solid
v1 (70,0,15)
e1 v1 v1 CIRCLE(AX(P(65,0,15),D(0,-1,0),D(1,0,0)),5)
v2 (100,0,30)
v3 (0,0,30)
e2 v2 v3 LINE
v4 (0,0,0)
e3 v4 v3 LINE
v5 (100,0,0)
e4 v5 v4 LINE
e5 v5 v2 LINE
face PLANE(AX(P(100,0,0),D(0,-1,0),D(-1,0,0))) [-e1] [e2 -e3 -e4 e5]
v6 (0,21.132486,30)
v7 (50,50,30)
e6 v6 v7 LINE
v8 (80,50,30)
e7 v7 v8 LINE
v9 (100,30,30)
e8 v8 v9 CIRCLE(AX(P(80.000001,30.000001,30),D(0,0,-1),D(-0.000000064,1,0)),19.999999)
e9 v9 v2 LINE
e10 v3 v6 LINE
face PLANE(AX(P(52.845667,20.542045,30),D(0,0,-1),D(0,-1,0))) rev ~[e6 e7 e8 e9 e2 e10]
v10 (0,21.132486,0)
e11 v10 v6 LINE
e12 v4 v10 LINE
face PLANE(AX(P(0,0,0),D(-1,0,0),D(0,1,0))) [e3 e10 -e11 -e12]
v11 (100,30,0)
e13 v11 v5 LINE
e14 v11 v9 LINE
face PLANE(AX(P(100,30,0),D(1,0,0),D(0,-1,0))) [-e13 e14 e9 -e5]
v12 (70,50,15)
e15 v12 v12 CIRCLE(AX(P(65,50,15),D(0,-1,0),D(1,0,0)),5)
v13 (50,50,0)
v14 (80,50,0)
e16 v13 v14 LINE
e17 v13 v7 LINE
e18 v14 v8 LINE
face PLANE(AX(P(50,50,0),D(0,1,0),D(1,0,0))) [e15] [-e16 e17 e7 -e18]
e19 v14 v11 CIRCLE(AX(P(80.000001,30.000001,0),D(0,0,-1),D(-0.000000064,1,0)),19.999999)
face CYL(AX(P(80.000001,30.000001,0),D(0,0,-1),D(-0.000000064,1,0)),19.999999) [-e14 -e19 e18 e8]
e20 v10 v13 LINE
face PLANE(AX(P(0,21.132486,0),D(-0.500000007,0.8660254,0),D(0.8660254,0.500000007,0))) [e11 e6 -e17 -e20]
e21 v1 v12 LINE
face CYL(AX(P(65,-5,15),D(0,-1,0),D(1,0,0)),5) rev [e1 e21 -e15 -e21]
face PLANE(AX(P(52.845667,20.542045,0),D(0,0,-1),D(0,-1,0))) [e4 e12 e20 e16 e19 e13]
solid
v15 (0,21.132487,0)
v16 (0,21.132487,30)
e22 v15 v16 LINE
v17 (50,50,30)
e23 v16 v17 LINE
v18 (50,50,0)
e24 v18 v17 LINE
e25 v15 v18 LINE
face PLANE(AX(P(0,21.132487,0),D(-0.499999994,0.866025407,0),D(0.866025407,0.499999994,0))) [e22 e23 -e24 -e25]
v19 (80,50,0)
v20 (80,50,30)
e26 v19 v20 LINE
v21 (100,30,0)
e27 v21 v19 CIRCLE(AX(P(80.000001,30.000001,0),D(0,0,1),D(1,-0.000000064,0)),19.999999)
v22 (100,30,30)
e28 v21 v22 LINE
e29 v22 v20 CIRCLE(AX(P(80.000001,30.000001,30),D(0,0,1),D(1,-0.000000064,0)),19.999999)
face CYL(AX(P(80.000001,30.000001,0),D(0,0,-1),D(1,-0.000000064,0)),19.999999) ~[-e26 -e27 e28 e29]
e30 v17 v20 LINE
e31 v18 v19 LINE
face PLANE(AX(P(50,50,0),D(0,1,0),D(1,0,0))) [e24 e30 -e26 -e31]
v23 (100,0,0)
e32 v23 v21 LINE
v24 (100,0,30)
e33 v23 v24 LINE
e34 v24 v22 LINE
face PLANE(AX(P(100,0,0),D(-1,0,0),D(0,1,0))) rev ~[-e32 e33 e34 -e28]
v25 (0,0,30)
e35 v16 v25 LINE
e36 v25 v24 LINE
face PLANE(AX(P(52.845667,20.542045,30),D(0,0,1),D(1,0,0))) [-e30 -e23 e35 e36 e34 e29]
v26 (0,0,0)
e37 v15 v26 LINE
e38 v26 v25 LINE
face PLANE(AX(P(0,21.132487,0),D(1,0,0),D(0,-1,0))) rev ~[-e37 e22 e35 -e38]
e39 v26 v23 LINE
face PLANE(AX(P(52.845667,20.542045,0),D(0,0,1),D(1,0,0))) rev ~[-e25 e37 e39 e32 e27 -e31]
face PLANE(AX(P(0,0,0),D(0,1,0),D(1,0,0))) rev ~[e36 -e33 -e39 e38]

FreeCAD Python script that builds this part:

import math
import FreeCAD as App
import Part
import Sketcher
Q = App.Units.Quantity

doc = App.newDocument("Part")
body = doc.addObject("PartDesign::Body", "Body")

sketch1 = doc.addObject("Sketcher::SketchObject", "Sketch")
body.addObject(sketch1)
sketch1.AttachmentSupport = (doc.XZ_Plane, [""])
sketch1.MapMode = "FlatFace"
sketch1.AttachmentOffset = App.Placement(App.Vector(0, 0, 5), App.Rotation())
sketch1.addGeometry(Part.Circle(App.Vector(65, 15, 0), App.Vector(0, 0, 1), 5), False)
sketch1.addConstraint(Sketcher.Constraint("Diameter", 0, Q("10 mm")))
sketch1.addConstraint(Sketcher.Constraint("DistanceX", -1, 1, 0, 3, Q("65 mm")))
sketch1.addConstraint(Sketcher.Constraint("DistanceY", -1, 1, 0, 3, Q("15 mm")))
pad1 = doc.addObject("PartDesign::Pad", "Pad")
body.addObject(pad1)
pad1.Profile = sketch1
pad1.Length = 60
pad1.Reversed = True
body2 = doc.addObject("PartDesign::Body", "Body001")

sketch2 = doc.addObject("Sketcher::SketchObject", "Sketch001")
body2.addObject(sketch2)
sketch2.AttachmentSupport = (doc.getObject("XY_Plane001"), [""])
sketch2.MapMode = "FlatFace"
sketch2.addGeometry(Part.LineSegment(App.Vector(0, 21, 0), App.Vector(50, 50, 0)), False)
sketch2.addGeometry(Part.LineSegment(App.Vector(50, 50, 0), App.Vector(80, 50, 0)), False)
sketch2.addGeometry(Part.ArcOfCircle(Part.Circle(App.Vector(80, 30, 0), App.Vector(0, 0, 1), 20), math.radians(0), math.radians(90)), False)
sketch2.addGeometry(Part.LineSegment(App.Vector(100, 30, 0), App.Vector(100, 0, 0)), False)
sketch2.addGeometry(Part.LineSegment(App.Vector(100, 0, 0), App.Vector(0, 0, 0)), False)
sketch2.addGeometry(Part.LineSegment(App.Vector(0, 0, 0), App.Vector(0, 21, 0)), False)
sketch2.addConstraint(Sketcher.Constraint("Coincident", 0, 2, 1, 1))
sketch2.addConstraint(Sketcher.Constraint("Tangent", 1, 2, 2, 2))
sketch2.addConstraint(Sketcher.Constraint("Tangent", 2, 1, 3, 1))
sketch2.addConstraint(Sketcher.Constraint("Coincident", 3, 2, 4, 1))
sketch2.addConstraint(Sketcher.Constraint("Coincident", 4, 2, 5, 1))
sketch2.addConstraint(Sketcher.Constraint("Coincident", 5, 2, 0, 1))
sketch2.addConstraint(Sketcher.Constraint("Horizontal", 1))
sketch2.addConstraint(Sketcher.Constraint("Vertical", 3))
sketch2.addConstraint(Sketcher.Constraint("Horizontal", 4))
sketch2.addConstraint(Sketcher.Constraint("Vertical", 5))
sketch2.addConstraint(Sketcher.Constraint("Coincident", 4, 2, -1, 1))
sketch2.addConstraint(Sketcher.Constraint("Equal", 1, 3))
sketch2.addConstraint(Sketcher.Constraint("Radius", 2, Q("19.999999 mm")))
sketch2.addConstraint(Sketcher.Constraint("DistanceX", 1, 1, 1, 2, Q("30 mm")))
sketch2.addConstraint(Sketcher.Constraint("DistanceX", 4, 2, 4, 1, Q("100 mm")))
sketch2.addConstraint(Sketcher.Constraint("Angle", 0, Q("30 deg")))
pad2 = doc.addObject("PartDesign::Pad", "Pad001")
body2.addObject(pad2)
pad2.Profile = sketch2
pad2.Length = 30
doc.recompute()

boolean = doc.addObject("PartDesign::Boolean", "Boolean")
body2.addObject(boolean)
boolean.Type = "Cut"
boolean.addObjects([body])
body3 = doc.addObject("PartDesign::Body", "Body002")

sketch3 = doc.addObject("Sketcher::SketchObject", "Sketch002")
body3.addObject(sketch3)
sketch3.AttachmentSupport = (doc.getObject("XY_Plane002"), [""])
sketch3.MapMode = "FlatFace"
sketch3.addGeometry(Part.LineSegment(App.Vector(0, 0, 0), App.Vector(100, 0, 0)), False)
sketch3.addGeometry(Part.LineSegment(App.Vector(100, 0, 0), App.Vector(100, 30, 0)), False)
sketch3.addGeometry(Part.ArcOfCircle(Part.Circle(App.Vector(80, 30, 0), App.Vector(0, 0, 1), 20), math.radians(0), math.radians(90)), False)
sketch3.addGeometry(Part.LineSegment(App.Vector(80, 50, 0), App.Vector(50, 50, 0)), False)
sketch3.addGeometry(Part.LineSegment(App.Vector(50, 50, 0), App.Vector(0, 21, 0)), False)
sketch3.addGeometry(Part.LineSegment(App.Vector(0, 21, 0), App.Vector(0, 0, 0)), False)
sketch3.addConstraint(Sketcher.Constraint("Coincident", 0, 2, 1, 1))
sketch3.addConstraint(Sketcher.Constraint("Tangent", 1, 2, 2, 1))
sketch3.addConstraint(Sketcher.Constraint("Tangent", 2, 2, 3, 1))
sketch3.addConstraint(Sketcher.Constraint("Coincident", 3, 2, 4, 1))
sketch3.addConstraint(Sketcher.Constraint("Coincident", 4, 2, 5, 1))
sketch3.addConstraint(Sketcher.Constraint("Coincident", 5, 2, 0, 1))
sketch3.addConstraint(Sketcher.Constraint("Horizontal", 0))
sketch3.addConstraint(Sketcher.Constraint("Vertical", 1))
sketch3.addConstraint(Sketcher.Constraint("Horizontal", 3))
sketch3.addConstraint(Sketcher.Constraint("Vertical", 5))
sketch3.addConstraint(Sketcher.Constraint("Coincident", 5, 2, -1, 1))
sketch3.addConstraint(Sketcher.Constraint("Equal", 3, 1))
sketch3.addConstraint(Sketcher.Constraint("Radius", 2, Q("19.999999 mm")))
sketch3.addConstraint(Sketcher.Constraint("DistanceX", 0, 1, 0, 2, Q("100 mm")))
sketch3.addConstraint(Sketcher.Constraint("DistanceX", 3, 2, 3, 1, Q("30 mm")))
sketch3.addConstraint(Sketcher.Constraint("Angle", 4, Q("-150 deg")))
pad3 = doc.addObject("PartDesign::Pad", "Pad002")
body3.addObject(pad3)
pad3.Profile = sketch3
pad3.Length = 30

doc.recompute()
